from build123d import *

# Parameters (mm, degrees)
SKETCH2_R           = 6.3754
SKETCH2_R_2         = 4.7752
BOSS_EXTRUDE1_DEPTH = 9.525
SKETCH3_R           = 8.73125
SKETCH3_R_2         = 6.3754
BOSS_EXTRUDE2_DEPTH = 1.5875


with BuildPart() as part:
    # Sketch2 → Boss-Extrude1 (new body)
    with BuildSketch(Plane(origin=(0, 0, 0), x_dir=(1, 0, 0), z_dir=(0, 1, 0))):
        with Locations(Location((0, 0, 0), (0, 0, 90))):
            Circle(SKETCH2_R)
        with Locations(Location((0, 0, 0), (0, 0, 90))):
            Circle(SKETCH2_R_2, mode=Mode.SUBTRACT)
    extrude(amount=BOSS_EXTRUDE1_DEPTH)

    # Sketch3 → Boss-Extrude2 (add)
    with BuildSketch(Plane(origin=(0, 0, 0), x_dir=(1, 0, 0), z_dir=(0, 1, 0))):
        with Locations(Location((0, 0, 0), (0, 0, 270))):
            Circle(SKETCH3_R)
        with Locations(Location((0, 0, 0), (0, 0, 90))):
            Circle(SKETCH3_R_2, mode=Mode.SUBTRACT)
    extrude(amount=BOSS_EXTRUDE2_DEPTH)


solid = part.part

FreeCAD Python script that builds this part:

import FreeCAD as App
import Part
import Sketcher

V = App.Vector
Q = App.Units.Quantity

doc = App.newDocument("Part")
body = doc.addObject("PartDesign::Body", "Body")

sketch1 = body.newObject("Sketcher::SketchObject", "Sketch")
sketch1.AttachmentSupport = (doc.getObject("XZ_Plane"), [""])
sketch1.MapMode = "FlatFace"
sketch1.addGeometry(Part.Circle(V(0, 0, 0), V(0, 0, 1), 6.4), False)
sketch1.addGeometry(Part.Circle(V(0, 0, 0), V(0, 0, 1), 4.8), False)
sketch1.addConstraint(Sketcher.Constraint("Coincident", 0, 3, -1, 1))
sketch1.addConstraint(Sketcher.Constraint("Coincident", 1, 3, -1, 1))
sketch1.addConstraint(Sketcher.Constraint("Diameter", 0, Q("0.502 in")))
sketch1.addConstraint(Sketcher.Constraint("Diameter", 1, Q("0.376 in")))
pad1 = body.newObject("PartDesign::Pad", "Pad")
pad1.Profile = sketch1
pad1.Length = Q("0.375 in")
pad1.Reversed = True

sketch2 = body.newObject("Sketcher::SketchObject", "Sketch001")
sketch2.AttachmentSupport = (doc.getObject("XZ_Plane"), [""])
sketch2.MapMode = "FlatFace"
sketch2.addGeometry(Part.Circle(V(0, 0, 0), V(0, 0, 1), 9), False)
sketch2.addGeometry(Part.Circle(V(0, 0, 0), V(0, 0, 1), 6), False)
sketch2.addConstraint(Sketcher.Constraint("Coincident", 0, 3, -1, 1))
sketch2.addConstraint(Sketcher.Constraint("Coincident", 1, 3, -1, 1))
sketch2.addConstraint(Sketcher.Constraint("Diameter", 0, Q("0.6875 in")))
sketch2.addConstraint(Sketcher.Constraint("Diameter", 1, Q("0.502 in")))
pad2 = body.newObject("PartDesign::Pad", "Pad001")
pad2.Profile = sketch2
pad2.Length = Q("0.0625 in")
pad2.Reversed = True

doc.recompute()
